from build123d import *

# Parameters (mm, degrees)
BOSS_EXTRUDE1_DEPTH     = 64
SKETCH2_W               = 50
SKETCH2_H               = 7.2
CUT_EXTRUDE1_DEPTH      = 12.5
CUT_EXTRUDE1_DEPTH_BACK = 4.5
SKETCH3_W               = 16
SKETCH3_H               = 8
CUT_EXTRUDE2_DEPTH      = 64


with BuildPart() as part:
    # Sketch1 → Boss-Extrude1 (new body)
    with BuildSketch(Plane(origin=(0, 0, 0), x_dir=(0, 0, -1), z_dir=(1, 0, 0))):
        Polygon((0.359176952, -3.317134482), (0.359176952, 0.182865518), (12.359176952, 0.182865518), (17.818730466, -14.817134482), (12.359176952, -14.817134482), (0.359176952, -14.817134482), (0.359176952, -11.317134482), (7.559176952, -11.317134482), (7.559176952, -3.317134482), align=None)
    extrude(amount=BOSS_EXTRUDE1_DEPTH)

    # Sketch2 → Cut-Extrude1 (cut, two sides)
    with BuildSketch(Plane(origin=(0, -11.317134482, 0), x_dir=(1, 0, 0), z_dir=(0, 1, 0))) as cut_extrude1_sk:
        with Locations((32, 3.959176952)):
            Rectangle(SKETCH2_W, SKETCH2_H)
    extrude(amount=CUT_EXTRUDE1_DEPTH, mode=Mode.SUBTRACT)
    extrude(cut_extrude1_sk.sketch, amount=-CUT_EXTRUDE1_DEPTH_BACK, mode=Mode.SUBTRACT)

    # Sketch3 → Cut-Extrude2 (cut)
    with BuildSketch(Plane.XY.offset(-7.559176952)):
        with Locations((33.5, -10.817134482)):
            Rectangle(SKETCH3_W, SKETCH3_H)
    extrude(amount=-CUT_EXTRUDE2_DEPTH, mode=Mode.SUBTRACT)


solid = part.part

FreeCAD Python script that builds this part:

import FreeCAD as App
import Part
import Sketcher
from FreeCAD import Vector
Q = App.Units.Quantity

doc = App.newDocument("Part")
body = doc.addObject("PartDesign::Body", "Body")

# Sketch on YZ plane
sketch1 = body.newObject("Sketcher::SketchObject", "Sketch")
sketch1.AttachmentSupport = (doc.getObject("YZ_Plane"), [""])
sketch1.MapMode = "FlatFace"
sketch1.addGeometry(Part.LineSegment(Vector(0.182866, -0.359177, 0), Vector(-3.317134, -0.359177, 0)), False)
sketch1.addGeometry(Part.LineSegment(Vector(-3.317134, -0.359177, 0), Vector(-3.317134, -7.559177, 0)), False)
sketch1.addGeometry(Part.LineSegment(Vector(-3.317134, -7.559177, 0), Vector(-11.317134, -7.559177, 0)), False)
sketch1.addGeometry(Part.LineSegment(Vector(-11.317134, -7.559177, 0), Vector(-11.317134, -0.359177, 0)), False)
sketch1.addGeometry(Part.LineSegment(Vector(-11.317134, -0.359177, 0), Vector(-14.817134, -0.359177, 0)), False)
sketch1.addGeometry(Part.LineSegment(Vector(-14.817134, -0.359177, 0), Vector(-14.817134, -17.81873, 0)), False)
sketch1.addGeometry(Part.LineSegment(Vector(-14.817134, -17.81873, 0), Vector(0.182866, -12.359177, 0)), False)
sketch1.addGeometry(Part.LineSegment(Vector(0.182866, -12.359177, 0), Vector(0.182866, -0.359177, 0)), False)
sketch1.addConstraint(Sketcher.Constraint("Coincident", 0, 2, 1, 1))
sketch1.addConstraint(Sketcher.Constraint("Coincident", 1, 2, 2, 1))
sketch1.addConstraint(Sketcher.Constraint("Coincident", 2, 2, 3, 1))
sketch1.addConstraint(Sketcher.Constraint("Coincident", 3, 2, 4, 1))
sketch1.addConstraint(Sketcher.Constraint("Coincident", 4, 2, 5, 1))
sketch1.addConstraint(Sketcher.Constraint("Coincident", 5, 2, 6, 1))
sketch1.addConstraint(Sketcher.Constraint("Coincident", 6, 2, 7, 1))
sketch1.addConstraint(Sketcher.Constraint("Coincident", 7, 2, 0, 1))
sketch1.addConstraint(Sketcher.Constraint("Horizontal", 0))
sketch1.addConstraint(Sketcher.Constraint("Vertical", 1))
sketch1.addConstraint(Sketcher.Constraint("Horizontal", 2))
sketch1.addConstraint(Sketcher.Constraint("Vertical", 3))
sketch1.addConstraint(Sketcher.Constraint("Horizontal", 4))
sketch1.addConstraint(Sketcher.Constraint("Vertical", 5))
sketch1.addConstraint(Sketcher.Constraint("Vertical", 7))
sketch1.addConstraint(Sketcher.Constraint("Horizontal", 0, 2, 3, 2))
sketch1.addConstraint(Sketcher.Constraint("Equal", 0, 4))
sketch1.addConstraint(Sketcher.Constraint("DistanceX", 2, 2, 2, 1, 8.0))
sketch1.addConstraint(Sketcher.Constraint("DistanceY", 7, 1, 7, 2, 12.0))
sketch1.addConstraint(Sketcher.Constraint("Angle", 6, Q("20 deg")))
sketch1.addConstraint(Sketcher.Constraint("DistanceX", 0, 2, 0, 1, 3.5))
sketch1.addConstraint(Sketcher.Constraint("DistanceY", 1, 2, 1, 1, 7.2))
sketch1.addConstraint(Sketcher.Constraint("DistanceY", 5, 2, -1, 1, 17.81873))
sketch1.addConstraint(Sketcher.Constraint("DistanceX", 0, 2, -1, 1, 3.317134))
pad1 = body.newObject("PartDesign::Pad", "Pad")
pad1.Profile = sketch1
pad1.Length = 64

# Sketch on XZ plane
sketch2 = body.newObject("Sketcher::SketchObject", "Sketch001")
sketch2.AttachmentSupport = (doc.getObject("XZ_Plane"), [""])
sketch2.MapMode = "FlatFace"
sketch2.AttachmentOffset = App.Placement(Vector(0, 0, 11.317134), App.Rotation())
sketch2.addGeometry(Part.LineSegment(Vector(7, -7.559177, 0), Vector(7, -0.359177, 0)), False)
sketch2.addGeometry(Part.LineSegment(Vector(7, -0.359177, 0), Vector(57, -0.359177, 0)), False)
sketch2.addGeometry(Part.LineSegment(Vector(57, -0.359177, 0), Vector(57, -7.559177, 0)), False)
sketch2.addGeometry(Part.LineSegment(Vector(57, -7.559177, 0), Vector(7, -7.559177, 0)), False)
sketch2.addConstraint(Sketcher.Constraint("Coincident", 0, 2, 1, 1))
sketch2.addConstraint(Sketcher.Constraint("Coincident", 1, 2, 2, 1))
sketch2.addConstraint(Sketcher.Constraint("Coincident", 2, 2, 3, 1))
sketch2.addConstraint(Sketcher.Constraint("Coincident", 3, 2, 0, 1))
sketch2.addConstraint(Sketcher.Constraint("Vertical", 0))
sketch2.addConstraint(Sketcher.Constraint("Horizontal", 1))
sketch2.addConstraint(Sketcher.Constraint("Vertical", 2))
sketch2.addConstraint(Sketcher.Constraint("Horizontal", 3))
sketch2.addConstraint(Sketcher.Constraint("DistanceX", 1, 1, 1, 2, 50.0))
sketch2.addConstraint(Sketcher.Constraint("DistanceY", 0, 1, 0, 2, 7.2))
sketch2.addConstraint(Sketcher.Constraint("DistanceX", -1, 1, 0, 2, 7.0))
sketch2.addConstraint(Sketcher.Constraint("DistanceY", 0, 2, -1, 1, 0.359177))
pocket1 = body.newObject("PartDesign::Pocket", "Pocket")
pocket1.Profile = sketch2
pocket1.Type = "ThroughAll"
pocket1.Midplane = True

# Sketch on XY plane
sketch3 = body.newObject("Sketcher::SketchObject", "Sketch002")
sketch3.AttachmentSupport = (doc.getObject("XY_Plane"), [""])
sketch3.MapMode = "FlatFace"
sketch3.AttachmentOffset = App.Placement(Vector(0, 0, -7.559177), App.Rotation())
sketch3.addGeometry(Part.LineSegment(Vector(25.5, -6.817134, 0), Vector(25.5, -14.817134, 0)), False)
sketch3.addGeometry(Part.LineSegment(Vector(25.5, -14.817134, 0), Vector(41.5, -14.817134, 0)), False)
sketch3.addGeometry(Part.LineSegment(Vector(41.5, -14.817134, 0), Vector(41.5, -6.817134, 0)), False)
sketch3.addGeometry(Part.LineSegment(Vector(41.5, -6.817134, 0), Vector(25.5, -6.817134, 0)), False)
sketch3.addConstraint(Sketcher.Constraint("Coincident", 0, 2, 1, 1))
sketch3.addConstraint(Sketcher.Constraint("Coincident", 1, 2, 2, 1))
sketch3.addConstraint(Sketcher.Constraint("Coincident", 2, 2, 3, 1))
sketch3.addConstraint(Sketcher.Constraint("Coincident", 3, 2, 0, 1))
sketch3.addConstraint(Sketcher.Constraint("Vertical", 0))
sketch3.addConstraint(Sketcher.Constraint("Horizontal", 1))
sketch3.addConstraint(Sketcher.Constraint("Vertical", 2))
sketch3.addConstraint(Sketcher.Constraint("Horizontal", 3))
sketch3.addConstraint(Sketcher.Constraint("DistanceX", 1, 1, 1, 2, 16.0))
sketch3.addConstraint(Sketcher.Constraint("DistanceY", 0, 2, 0, 1, 8.0))
sketch3.addConstraint(Sketcher.Constraint("DistanceX", -1, 1, 0, 2, 25.5))
sketch3.addConstraint(Sketcher.Constraint("DistanceY", 0, 2, -1, 1, 14.817134))
pocket2 = body.newObject("PartDesign::Pocket", "Pocket001")
pocket2.Profile = sketch3
pocket2.Length = 64

doc.recompute()
